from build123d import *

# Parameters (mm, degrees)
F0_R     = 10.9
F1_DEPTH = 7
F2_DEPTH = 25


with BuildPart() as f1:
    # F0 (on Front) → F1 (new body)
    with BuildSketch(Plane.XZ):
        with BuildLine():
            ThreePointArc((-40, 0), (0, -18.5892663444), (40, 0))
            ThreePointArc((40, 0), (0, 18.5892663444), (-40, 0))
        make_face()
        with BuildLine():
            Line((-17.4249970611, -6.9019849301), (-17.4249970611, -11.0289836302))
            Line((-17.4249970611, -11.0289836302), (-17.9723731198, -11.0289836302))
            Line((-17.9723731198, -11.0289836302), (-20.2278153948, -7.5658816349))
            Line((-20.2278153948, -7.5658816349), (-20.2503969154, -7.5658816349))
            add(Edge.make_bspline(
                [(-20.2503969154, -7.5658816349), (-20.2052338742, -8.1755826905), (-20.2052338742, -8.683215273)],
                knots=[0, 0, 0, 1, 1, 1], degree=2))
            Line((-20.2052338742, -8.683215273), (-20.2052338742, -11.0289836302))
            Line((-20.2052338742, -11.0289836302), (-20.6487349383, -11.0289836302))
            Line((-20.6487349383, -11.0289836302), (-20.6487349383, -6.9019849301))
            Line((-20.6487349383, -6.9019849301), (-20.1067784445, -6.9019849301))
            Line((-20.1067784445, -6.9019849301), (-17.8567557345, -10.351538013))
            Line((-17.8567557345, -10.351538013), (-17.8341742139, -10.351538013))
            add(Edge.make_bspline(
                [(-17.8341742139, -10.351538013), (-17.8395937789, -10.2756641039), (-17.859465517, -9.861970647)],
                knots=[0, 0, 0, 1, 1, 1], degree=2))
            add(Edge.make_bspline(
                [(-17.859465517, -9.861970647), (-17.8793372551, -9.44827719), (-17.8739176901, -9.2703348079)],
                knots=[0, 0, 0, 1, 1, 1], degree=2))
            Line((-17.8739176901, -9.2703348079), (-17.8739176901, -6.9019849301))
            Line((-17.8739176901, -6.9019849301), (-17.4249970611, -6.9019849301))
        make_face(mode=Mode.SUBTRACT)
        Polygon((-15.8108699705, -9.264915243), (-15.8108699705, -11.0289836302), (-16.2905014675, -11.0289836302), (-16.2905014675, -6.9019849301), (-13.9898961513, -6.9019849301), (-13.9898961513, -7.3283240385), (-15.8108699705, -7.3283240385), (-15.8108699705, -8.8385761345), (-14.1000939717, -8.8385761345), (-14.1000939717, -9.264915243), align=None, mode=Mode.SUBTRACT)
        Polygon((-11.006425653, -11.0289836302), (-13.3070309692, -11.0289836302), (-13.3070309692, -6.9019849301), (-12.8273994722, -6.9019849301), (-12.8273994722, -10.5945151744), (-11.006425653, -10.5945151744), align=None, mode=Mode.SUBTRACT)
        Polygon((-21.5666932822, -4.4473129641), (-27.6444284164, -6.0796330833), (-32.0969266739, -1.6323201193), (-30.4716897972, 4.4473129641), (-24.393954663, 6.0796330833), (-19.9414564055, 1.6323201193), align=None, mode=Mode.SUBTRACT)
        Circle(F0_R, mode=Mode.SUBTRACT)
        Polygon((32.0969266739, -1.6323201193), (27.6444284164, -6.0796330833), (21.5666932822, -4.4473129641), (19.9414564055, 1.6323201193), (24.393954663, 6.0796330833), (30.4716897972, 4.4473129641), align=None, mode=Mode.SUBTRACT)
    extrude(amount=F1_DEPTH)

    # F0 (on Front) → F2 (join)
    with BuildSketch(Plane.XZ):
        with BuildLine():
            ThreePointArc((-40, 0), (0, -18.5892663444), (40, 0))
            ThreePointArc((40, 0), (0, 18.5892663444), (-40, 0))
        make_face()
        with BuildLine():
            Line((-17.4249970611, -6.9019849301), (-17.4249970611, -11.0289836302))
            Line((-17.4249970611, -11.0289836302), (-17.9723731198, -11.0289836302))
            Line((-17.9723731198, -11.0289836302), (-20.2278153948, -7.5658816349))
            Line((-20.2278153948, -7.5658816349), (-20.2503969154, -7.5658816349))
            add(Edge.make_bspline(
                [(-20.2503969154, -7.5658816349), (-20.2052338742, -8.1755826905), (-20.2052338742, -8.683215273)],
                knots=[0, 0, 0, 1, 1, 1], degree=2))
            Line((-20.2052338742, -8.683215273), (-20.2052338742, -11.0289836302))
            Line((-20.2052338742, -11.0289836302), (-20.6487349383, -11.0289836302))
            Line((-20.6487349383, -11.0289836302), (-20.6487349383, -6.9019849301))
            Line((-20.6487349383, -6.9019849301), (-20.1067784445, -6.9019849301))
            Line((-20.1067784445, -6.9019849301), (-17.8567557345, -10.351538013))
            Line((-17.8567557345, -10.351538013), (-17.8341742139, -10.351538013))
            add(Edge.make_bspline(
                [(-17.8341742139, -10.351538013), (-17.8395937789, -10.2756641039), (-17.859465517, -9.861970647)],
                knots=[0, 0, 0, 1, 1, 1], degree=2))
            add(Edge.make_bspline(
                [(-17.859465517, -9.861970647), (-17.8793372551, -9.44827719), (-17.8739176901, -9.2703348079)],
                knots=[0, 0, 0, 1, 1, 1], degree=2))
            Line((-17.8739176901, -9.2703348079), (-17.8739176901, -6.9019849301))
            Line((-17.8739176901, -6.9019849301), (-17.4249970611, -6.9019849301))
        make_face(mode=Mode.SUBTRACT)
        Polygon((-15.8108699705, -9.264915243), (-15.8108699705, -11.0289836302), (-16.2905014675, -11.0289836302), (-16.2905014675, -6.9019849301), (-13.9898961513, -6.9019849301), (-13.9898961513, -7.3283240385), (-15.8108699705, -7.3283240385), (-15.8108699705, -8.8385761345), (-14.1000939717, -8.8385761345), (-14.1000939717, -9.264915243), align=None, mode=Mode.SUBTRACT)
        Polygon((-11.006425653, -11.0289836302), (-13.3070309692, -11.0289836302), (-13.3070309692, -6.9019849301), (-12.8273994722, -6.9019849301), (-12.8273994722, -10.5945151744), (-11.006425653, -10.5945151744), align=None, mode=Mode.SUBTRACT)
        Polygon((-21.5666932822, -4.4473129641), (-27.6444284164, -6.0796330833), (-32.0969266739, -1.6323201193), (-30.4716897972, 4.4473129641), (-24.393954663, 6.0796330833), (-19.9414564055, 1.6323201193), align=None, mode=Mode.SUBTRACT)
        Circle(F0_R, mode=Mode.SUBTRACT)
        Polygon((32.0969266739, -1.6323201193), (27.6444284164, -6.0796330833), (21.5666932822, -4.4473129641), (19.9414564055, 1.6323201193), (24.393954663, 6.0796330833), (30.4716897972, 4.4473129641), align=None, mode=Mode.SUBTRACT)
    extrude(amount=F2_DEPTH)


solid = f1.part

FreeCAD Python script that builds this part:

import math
import FreeCAD as App
import Part
import Sketcher
from FreeCAD import Vector


def add_polygon(sketch, points):
    """Adds a closed chain of lines whose ends are joined by coincident constraints."""
    first, n = sketch.GeometryCount, len(points)
    for a, b in zip(points, points[1:] + points[:1]):
        sketch.addGeometry(Part.LineSegment(App.Vector(*a, 0), App.Vector(*b, 0)), False)
    for i in range(n):
        sketch.addConstraint(Sketcher.Constraint("Coincident", first + i, 2, first + (i + 1) % n, 1))

doc = App.newDocument("Part")
body = doc.addObject("PartDesign::Body", "Body")

sketch1 = body.newObject("Sketcher::SketchObject", "Sketch")
sketch1.AttachmentSupport = (doc.getObject("XZ_Plane"), [""])
sketch1.MapMode = "FlatFace"
sketch1.addGeometry(Part.ArcOfCircle(Part.Circle(Vector(0, 33.740954, 0), Vector(0, 0, 1), 52.330221), math.radians(-139.85157), math.radians(-40.14843)), False)
sketch1.addGeometry(Part.ArcOfCircle(Part.Circle(Vector(0, -33.740954, 0), Vector(0, 0, 1), 52.330221), math.radians(40.14843), math.radians(139.85157)), False)
sketch1.addGeometry(Part.LineSegment(Vector(-17.873918, -6.901985, 0), Vector(-17.424997, -6.901985, 0)), False)
sketch1.addGeometry(Part.LineSegment(Vector(-17.424997, -6.901985, 0), Vector(-17.424997, -11.028984, 0)), False)
sketch1.addGeometry(Part.LineSegment(Vector(-17.424997, -11.028984, 0), Vector(-17.972373, -11.028984, 0)), False)
sketch1.addGeometry(Part.LineSegment(Vector(-17.972373, -11.028984, 0), Vector(-20.227815, -7.565882, 0)), False)
sketch1.addGeometry(Part.LineSegment(Vector(-20.227815, -7.565882, 0), Vector(-20.250397, -7.565882, 0)), False)
sketch1.addGeometry(Part.BSplineCurve([Vector(-20.250397, -7.565882, 0), Vector(-20.205234, -8.175583, 0), Vector(-20.205234, -8.683215, 0)], [3, 3], [0, 1], False, 2, [1, 1, 1], False), False)
sketch1.addGeometry(Part.LineSegment(Vector(-20.205234, -8.683215, 0), Vector(-20.205234, -11.028984, 0)), False)
sketch1.addGeometry(Part.LineSegment(Vector(-20.205234, -11.028984, 0), Vector(-20.648735, -11.028984, 0)), False)
sketch1.addGeometry(Part.LineSegment(Vector(-20.648735, -11.028984, 0), Vector(-20.648735, -6.901985, 0)), False)
sketch1.addGeometry(Part.LineSegment(Vector(-20.648735, -6.901985, 0), Vector(-20.106778, -6.901985, 0)), False)
sketch1.addGeometry(Part.LineSegment(Vector(-20.106778, -6.901985, 0), Vector(-17.856756, -10.351538, 0)), False)
sketch1.addGeometry(Part.LineSegment(Vector(-17.856756, -10.351538, 0), Vector(-17.834174, -10.351538, 0)), False)
sketch1.addGeometry(Part.BSplineCurve([Vector(-17.834174, -10.351538, 0), Vector(-17.839594, -10.275664, 0), Vector(-17.859466, -9.861971, 0)], [3, 3], [0, 1], False, 2, [1, 1, 1], False), False)
sketch1.addGeometry(Part.BSplineCurve([Vector(-17.859466, -9.861971, 0), Vector(-17.879337, -9.448277, 0), Vector(-17.873918, -9.270335, 0)], [3, 3], [0, 1], False, 2, [1, 1, 1], False), False)
sketch1.addGeometry(Part.LineSegment(Vector(-17.873918, -9.270335, 0), Vector(-17.873918, -6.901985, 0)), False)
add_polygon(sketch1, [(-14.100094, -9.264915), (-15.81087, -9.264915), (-15.81087, -11.028984), (-16.290501, -11.028984), (-16.290501, -6.901985), (-13.989896, -6.901985), (-13.989896, -7.328324), (-15.81087, -7.328324), (-15.81087, -8.838576), (-14.100094, -8.838576)])
add_polygon(sketch1, [(-11.006426, -10.594515), (-11.006426, -11.028984), (-13.307031, -11.028984), (-13.307031, -6.901985), (-12.827399, -6.901985), (-12.827399, -10.594515)])
add_polygon(sketch1, [(-19.941456, 1.63232), (-21.566693, -4.447313), (-27.644428, -6.079633), (-32.096927, -1.63232), (-30.47169, 4.447313), (-24.393955, 6.079633)])
sketch1.addGeometry(Part.Circle(Vector(0, 0, 0), Vector(0, 0, 1), 10.9), False)
add_polygon(sketch1, [(30.47169, 4.447313), (32.096927, -1.63232), (27.644428, -6.079633), (21.566693, -4.447313), (19.941456, 1.63232), (24.393955, 6.079633)])
sketch1.addConstraint([
    Sketcher.Constraint("Block", 7),
    Sketcher.Constraint("Block", 14),
    Sketcher.Constraint("Block", 15),
    Sketcher.Constraint("Coincident", 0, 1, 1, 2),
    Sketcher.Constraint("Coincident", 1, 1, 0, 2),
    Sketcher.Constraint("Coincident", 2, 2, 3, 1),
    Sketcher.Constraint("Coincident", 3, 2, 4, 1),
    Sketcher.Constraint("Coincident", 4, 2, 5, 1),
    Sketcher.Constraint("Coincident", 5, 2, 6, 1),
    Sketcher.Constraint("Coincident", 6, 2, 7, 1),
    Sketcher.Constraint("Coincident", 7, 2, 8, 1),
    Sketcher.Constraint("Coincident", 8, 2, 9, 1),
    Sketcher.Constraint("Coincident", 9, 2, 10, 1),
    Sketcher.Constraint("Coincident", 10, 2, 11, 1),
    Sketcher.Constraint("Coincident", 11, 2, 12, 1),
    Sketcher.Constraint("Coincident", 12, 2, 13, 1),
    Sketcher.Constraint("Coincident", 13, 2, 14, 1),
    Sketcher.Constraint("Coincident", 15, 2, 16, 1),
    Sketcher.Constraint("Coincident", 16, 2, 2, 1),
    Sketcher.Constraint("Horizontal", 2),
    Sketcher.Constraint("Vertical", 3),
    Sketcher.Constraint("Horizontal", 4),
    Sketcher.Constraint("Horizontal", 6),
    Sketcher.Constraint("Vertical", 8),
    Sketcher.Constraint("Horizontal", 9),
    Sketcher.Constraint("Vertical", 10),
    Sketcher.Constraint("Horizontal", 11),
    Sketcher.Constraint("Horizontal", 13),
    Sketcher.Constraint("Vertical", 16),
    Sketcher.Constraint("Horizontal", 17),
    Sketcher.Constraint("Vertical", 18),
    Sketcher.Constraint("Horizontal", 19),
    Sketcher.Constraint("Vertical", 20),
    Sketcher.Constraint("Horizontal", 21),
    Sketcher.Constraint("Vertical", 22),
    Sketcher.Constraint("Horizontal", 23),
    Sketcher.Constraint("Vertical", 24),
    Sketcher.Constraint("Horizontal", 25),
    Sketcher.Constraint("Vertical", 26),
    Sketcher.Constraint("Vertical", 27),
    Sketcher.Constraint("Horizontal", 28),
    Sketcher.Constraint("Vertical", 29),
    Sketcher.Constraint("Horizontal", 30),
    Sketcher.Constraint("Vertical", 31),
    Sketcher.Constraint("Horizontal", 32),
    Sketcher.Constraint("Coincident", 39, 3, -1, 1),
    Sketcher.Constraint("Equal", 0, 1),
    Sketcher.Constraint("Symmetric", 0, 3, 1, 3, -1, 1),
    Sketcher.Constraint("Symmetric", 35, 2, 40, 2, -2),
    Sketcher.Constraint("Symmetric", 34, 2, 41, 2, -2),
    Sketcher.Constraint("Symmetric", 33, 2, 42, 2, -2),
    Sketcher.Constraint("Symmetric", 38, 2, 43, 2, -2),
    Sketcher.Constraint("Symmetric", 37, 2, 44, 2, -2),
    Sketcher.Constraint("Symmetric", 36, 2, 45, 2, -2),
    Sketcher.Constraint("PointOnObject", 0, 3, -2),
    Sketcher.Constraint("Parallel", 33, 36),
    Sketcher.Constraint("Parallel", 34, 37),
    Sketcher.Constraint("Parallel", 35, 38),
    Sketcher.Constraint("Horizontal", 4, 2, 8, 2),
    Sketcher.Constraint("Horizontal", 2, 2, 10, 2),
    Sketcher.Constraint("Horizontal", 9, 2, 18, 2),
    Sketcher.Constraint("Horizontal", 16, 2, 20, 2),
    Sketcher.Constraint("Horizontal", 19, 2, 27, 2),
    Sketcher.Constraint("Horizontal", 21, 2, 29, 2),
    Sketcher.Constraint("Vertical", 18, 2, 23, 2),
    Sketcher.Constraint("Equal", 6, 13),
    Sketcher.Constraint("Equal", 21, 28),
    Sketcher.Constraint("Equal", 19, 30),
    Sketcher.Constraint("Equal", 22, 26),
    Sketcher.Constraint("Equal", 33, 34),
    Sketcher.Constraint("Equal", 34, 35),
    Sketcher.Constraint("Equal", 35, 36),
    Sketcher.Constraint("Diameter", 39, 21.8),
    Sketcher.Constraint("DistanceX", 0, 1, -1, 1, 40.0),
    Sketcher.Constraint("DistanceY", 3, 2, 3, 1, 4.126999),
    Sketcher.Constraint("Radius", 0, 52.330221),
    Sketcher.Constraint("DistanceX", 9, 2, 9, 1, 0.443501),
    Sketcher.Constraint("DistanceX", 2, 1, 2, 2, 0.448921),
    Sketcher.Constraint("DistanceX", 6, 2, 6, 1, 0.022582),
    Sketcher.Constraint("DistanceX", 19, 2, 19, 1, 0.479631),
    Sketcher.Constraint("DistanceY", 8, 2, 8, 1, 2.345768),
    Sketcher.Constraint("DistanceY", 18, 2, 18, 1, 1.764068),
    Sketcher.Constraint("DistanceY", 22, 2, 22, 1, 0.426339),
    Sketcher.Constraint("DistanceY", 27, 2, 27, 1, 0.434468),
    Sketcher.Constraint("DistanceX", 19, 2, -1, 1, 16.290501),
    Sketcher.Constraint("DistanceX", 30, 2, -1, 1, 12.827399),
    Sketcher.Constraint("DistanceX", 4, 2, 13, 2, 0.138199),
    Sketcher.Constraint("DistanceX", 2, 2, 21, 2, 3.435101),
    Sketcher.Constraint("DistanceX", 35, 2, 34, 2, 4.452498),
    Sketcher.Constraint("DistanceX", 11, 1, 11, 2, 0.541956),
    Sketcher.Constraint("DistanceX", 17, 2, 17, 1, 1.710776),
    Sketcher.Constraint("DistanceX", 34, 2, -1, 1, 27.644428),
    Sketcher.Constraint("DistanceY", 35, 2, -1, 1, 1.63232),
    Sketcher.Constraint("DistanceX", 36, 2, -1, 1, 30.47169),
    Sketcher.Constraint("DistanceY", -1, 1, 38, 2, 1.63232),
    Sketcher.Constraint("DistanceX", 33, 2, 10, 2, 0.917958),
])
pad1 = body.newObject("PartDesign::Pad", "Pad")
pad1.Profile = sketch1
pad1.Length = 7

sketch2 = body.newObject("Sketcher::SketchObject", "Sketch001")
sketch2.AttachmentSupport = (doc.getObject("XZ_Plane"), [""])
sketch2.MapMode = "FlatFace"
sketch2.addGeometry(Part.ArcOfCircle(Part.Circle(Vector(0, 33.740954, 0), Vector(0, 0, 1), 52.330221), math.radians(-139.85157), math.radians(-40.14843)), False)
sketch2.addGeometry(Part.ArcOfCircle(Part.Circle(Vector(0, -33.740954, 0), Vector(0, 0, 1), 52.330221), math.radians(40.14843), math.radians(139.85157)), False)
sketch2.addGeometry(Part.LineSegment(Vector(-17.873918, -6.901985, 0), Vector(-17.424997, -6.901985, 0)), False)
sketch2.addGeometry(Part.LineSegment(Vector(-17.424997, -6.901985, 0), Vector(-17.424997, -11.028984, 0)), False)
sketch2.addGeometry(Part.LineSegment(Vector(-17.424997, -11.028984, 0), Vector(-17.972373, -11.028984, 0)), False)
sketch2.addGeometry(Part.LineSegment(Vector(-17.972373, -11.028984, 0), Vector(-20.227815, -7.565882, 0)), False)
sketch2.addGeometry(Part.LineSegment(Vector(-20.227815, -7.565882, 0), Vector(-20.250397, -7.565882, 0)), False)
sketch2.addGeometry(Part.BSplineCurve([Vector(-20.250397, -7.565882, 0), Vector(-20.205234, -8.175583, 0), Vector(-20.205234, -8.683215, 0)], [3, 3], [0, 1], False, 2, [1, 1, 1], False), False)
sketch2.addGeometry(Part.LineSegment(Vector(-20.205234, -8.683215, 0), Vector(-20.205234, -11.028984, 0)), False)
sketch2.addGeometry(Part.LineSegment(Vector(-20.205234, -11.028984, 0), Vector(-20.648735, -11.028984, 0)), False)
sketch2.addGeometry(Part.LineSegment(Vector(-20.648735, -11.028984, 0), Vector(-20.648735, -6.901985, 0)), False)
sketch2.addGeometry(Part.LineSegment(Vector(-20.648735, -6.901985, 0), Vector(-20.106778, -6.901985, 0)), False)
sketch2.addGeometry(Part.LineSegment(Vector(-20.106778, -6.901985, 0), Vector(-17.856756, -10.351538, 0)), False)
sketch2.addGeometry(Part.LineSegment(Vector(-17.856756, -10.351538, 0), Vector(-17.834174, -10.351538, 0)), False)
sketch2.addGeometry(Part.BSplineCurve([Vector(-17.834174, -10.351538, 0), Vector(-17.839594, -10.275664, 0), Vector(-17.859466, -9.861971, 0)], [3, 3], [0, 1], False, 2, [1, 1, 1], False), False)
sketch2.addGeometry(Part.BSplineCurve([Vector(-17.859466, -9.861971, 0), Vector(-17.879337, -9.448277, 0), Vector(-17.873918, -9.270335, 0)], [3, 3], [0, 1], False, 2, [1, 1, 1], False), False)
sketch2.addGeometry(Part.LineSegment(Vector(-17.873918, -9.270335, 0), Vector(-17.873918, -6.901985, 0)), False)
add_polygon(sketch2, [(-14.100094, -9.264915), (-15.81087, -9.264915), (-15.81087, -11.028984), (-16.290501, -11.028984), (-16.290501, -6.901985), (-13.989896, -6.901985), (-13.989896, -7.328324), (-15.81087, -7.328324), (-15.81087, -8.838576), (-14.100094, -8.838576)])
add_polygon(sketch2, [(-11.006426, -10.594515), (-11.006426, -11.028984), (-13.307031, -11.028984), (-13.307031, -6.901985), (-12.827399, -6.901985), (-12.827399, -10.594515)])
add_polygon(sketch2, [(-19.941456, 1.63232), (-21.566693, -4.447313), (-27.644428, -6.079633), (-32.096927, -1.63232), (-30.47169, 4.447313), (-24.393955, 6.079633)])
sketch2.addGeometry(Part.Circle(Vector(0, 0, 0), Vector(0, 0, 1), 10.9), False)
add_polygon(sketch2, [(30.47169, 4.447313), (32.096927, -1.63232), (27.644428, -6.079633), (21.566693, -4.447313), (19.941456, 1.63232), (24.393955, 6.079633)])
sketch2.addConstraint([
    Sketcher.Constraint("Block", 7),
    Sketcher.Constraint("Block", 14),
    Sketcher.Constraint("Block", 15),
    Sketcher.Constraint("Coincident", 0, 1, 1, 2),
    Sketcher.Constraint("Coincident", 1, 1, 0, 2),
    Sketcher.Constraint("Coincident", 2, 2, 3, 1),
    Sketcher.Constraint("Coincident", 3, 2, 4, 1),
    Sketcher.Constraint("Coincident", 4, 2, 5, 1),
    Sketcher.Constraint("Coincident", 5, 2, 6, 1),
    Sketcher.Constraint("Coincident", 6, 2, 7, 1),
    Sketcher.Constraint("Coincident", 7, 2, 8, 1),
    Sketcher.Constraint("Coincident", 8, 2, 9, 1),
    Sketcher.Constraint("Coincident", 9, 2, 10, 1),
    Sketcher.Constraint("Coincident", 10, 2, 11, 1),
    Sketcher.Constraint("Coincident", 11, 2, 12, 1),
    Sketcher.Constraint("Coincident", 12, 2, 13, 1),
    Sketcher.Constraint("Coincident", 13, 2, 14, 1),
    Sketcher.Constraint("Coincident", 15, 2, 16, 1),
    Sketcher.Constraint("Coincident", 16, 2, 2, 1),
    Sketcher.Constraint("Horizontal", 2),
    Sketcher.Constraint("Vertical", 3),
    Sketcher.Constraint("Horizontal", 4),
    Sketcher.Constraint("Horizontal", 6),
    Sketcher.Constraint("Vertical", 8),
    Sketcher.Constraint("Horizontal", 9),
    Sketcher.Constraint("Vertical", 10),
    Sketcher.Constraint("Horizontal", 11),
    Sketcher.Constraint("Horizontal", 13),
    Sketcher.Constraint("Vertical", 16),
    Sketcher.Constraint("Horizontal", 17),
    Sketcher.Constraint("Vertical", 18),
    Sketcher.Constraint("Horizontal", 19),
    Sketcher.Constraint("Vertical", 20),
    Sketcher.Constraint("Horizontal", 21),
    Sketcher.Constraint("Vertical", 22),
    Sketcher.Constraint("Horizontal", 23),
    Sketcher.Constraint("Vertical", 24),
    Sketcher.Constraint("Horizontal", 25),
    Sketcher.Constraint("Vertical", 26),
    Sketcher.Constraint("Vertical", 27),
    Sketcher.Constraint("Horizontal", 28),
    Sketcher.Constraint("Vertical", 29),
    Sketcher.Constraint("Horizontal", 30),
    Sketcher.Constraint("Vertical", 31),
    Sketcher.Constraint("Horizontal", 32),
    Sketcher.Constraint("Coincident", 39, 3, -1, 1),
    Sketcher.Constraint("Equal", 0, 1),
    Sketcher.Constraint("Symmetric", 0, 3, 1, 3, -1, 1),
    Sketcher.Constraint("Symmetric", 35, 2, 40, 2, -2),
    Sketcher.Constraint("Symmetric", 34, 2, 41, 2, -2),
    Sketcher.Constraint("Symmetric", 33, 2, 42, 2, -2),
    Sketcher.Constraint("Symmetric", 38, 2, 43, 2, -2),
    Sketcher.Constraint("Symmetric", 37, 2, 44, 2, -2),
    Sketcher.Constraint("Symmetric", 36, 2, 45, 2, -2),
    Sketcher.Constraint("PointOnObject", 0, 3, -2),
    Sketcher.Constraint("Parallel", 33, 36),
    Sketcher.Constraint("Parallel", 34, 37),
    Sketcher.Constraint("Parallel", 35, 38),
    Sketcher.Constraint("Horizontal", 4, 2, 8, 2),
    Sketcher.Constraint("Horizontal", 2, 2, 10, 2),
    Sketcher.Constraint("Horizontal", 9, 2, 18, 2),
    Sketcher.Constraint("Horizontal", 16, 2, 20, 2),
    Sketcher.Constraint("Horizontal", 19, 2, 27, 2),
    Sketcher.Constraint("Horizontal", 21, 2, 29, 2),
    Sketcher.Constraint("Vertical", 18, 2, 23, 2),
    Sketcher.Constraint("Equal", 6, 13),
    Sketcher.Constraint("Equal", 21, 28),
    Sketcher.Constraint("Equal", 19, 30),
    Sketcher.Constraint("Equal", 22, 26),
    Sketcher.Constraint("Equal", 33, 34),
    Sketcher.Constraint("Equal", 34, 35),
    Sketcher.Constraint("Equal", 35, 36),
    Sketcher.Constraint("Diameter", 39, 21.8),
    Sketcher.Constraint("DistanceX", 0, 1, -1, 1, 40.0),
    Sketcher.Constraint("DistanceY", 3, 2, 3, 1, 4.126999),
    Sketcher.Constraint("Radius", 0, 52.330221),
    Sketcher.Constraint("DistanceX", 9, 2, 9, 1, 0.443501),
    Sketcher.Constraint("DistanceX", 2, 1, 2, 2, 0.448921),
    Sketcher.Constraint("DistanceX", 6, 2, 6, 1, 0.022582),
    Sketcher.Constraint("DistanceX", 19, 2, 19, 1, 0.479631),
    Sketcher.Constraint("DistanceY", 8, 2, 8, 1, 2.345768),
    Sketcher.Constraint("DistanceY", 18, 2, 18, 1, 1.764068),
    Sketcher.Constraint("DistanceY", 22, 2, 22, 1, 0.426339),
    Sketcher.Constraint("DistanceY", 27, 2, 27, 1, 0.434468),
    Sketcher.Constraint("DistanceX", 19, 2, -1, 1, 16.290501),
    Sketcher.Constraint("DistanceX", 30, 2, -1, 1, 12.827399),
    Sketcher.Constraint("DistanceX", 4, 2, 13, 2, 0.138199),
    Sketcher.Constraint("DistanceX", 2, 2, 21, 2, 3.435101),
    Sketcher.Constraint("DistanceX", 35, 2, 34, 2, 4.452498),
    Sketcher.Constraint("DistanceX", 11, 1, 11, 2, 0.541956),
    Sketcher.Constraint("DistanceX", 17, 2, 17, 1, 1.710776),
    Sketcher.Constraint("DistanceX", 34, 2, -1, 1, 27.644428),
    Sketcher.Constraint("DistanceY", 35, 2, -1, 1, 1.63232),
    Sketcher.Constraint("DistanceX", 36, 2, -1, 1, 30.47169),
    Sketcher.Constraint("DistanceY", -1, 1, 38, 2, 1.63232),
    Sketcher.Constraint("DistanceX", 33, 2, 10, 2, 0.917958),
])
pad2 = body.newObject("PartDesign::Pad", "Pad001")
pad2.Profile = sketch2
pad2.Length = 25

doc.recompute()
